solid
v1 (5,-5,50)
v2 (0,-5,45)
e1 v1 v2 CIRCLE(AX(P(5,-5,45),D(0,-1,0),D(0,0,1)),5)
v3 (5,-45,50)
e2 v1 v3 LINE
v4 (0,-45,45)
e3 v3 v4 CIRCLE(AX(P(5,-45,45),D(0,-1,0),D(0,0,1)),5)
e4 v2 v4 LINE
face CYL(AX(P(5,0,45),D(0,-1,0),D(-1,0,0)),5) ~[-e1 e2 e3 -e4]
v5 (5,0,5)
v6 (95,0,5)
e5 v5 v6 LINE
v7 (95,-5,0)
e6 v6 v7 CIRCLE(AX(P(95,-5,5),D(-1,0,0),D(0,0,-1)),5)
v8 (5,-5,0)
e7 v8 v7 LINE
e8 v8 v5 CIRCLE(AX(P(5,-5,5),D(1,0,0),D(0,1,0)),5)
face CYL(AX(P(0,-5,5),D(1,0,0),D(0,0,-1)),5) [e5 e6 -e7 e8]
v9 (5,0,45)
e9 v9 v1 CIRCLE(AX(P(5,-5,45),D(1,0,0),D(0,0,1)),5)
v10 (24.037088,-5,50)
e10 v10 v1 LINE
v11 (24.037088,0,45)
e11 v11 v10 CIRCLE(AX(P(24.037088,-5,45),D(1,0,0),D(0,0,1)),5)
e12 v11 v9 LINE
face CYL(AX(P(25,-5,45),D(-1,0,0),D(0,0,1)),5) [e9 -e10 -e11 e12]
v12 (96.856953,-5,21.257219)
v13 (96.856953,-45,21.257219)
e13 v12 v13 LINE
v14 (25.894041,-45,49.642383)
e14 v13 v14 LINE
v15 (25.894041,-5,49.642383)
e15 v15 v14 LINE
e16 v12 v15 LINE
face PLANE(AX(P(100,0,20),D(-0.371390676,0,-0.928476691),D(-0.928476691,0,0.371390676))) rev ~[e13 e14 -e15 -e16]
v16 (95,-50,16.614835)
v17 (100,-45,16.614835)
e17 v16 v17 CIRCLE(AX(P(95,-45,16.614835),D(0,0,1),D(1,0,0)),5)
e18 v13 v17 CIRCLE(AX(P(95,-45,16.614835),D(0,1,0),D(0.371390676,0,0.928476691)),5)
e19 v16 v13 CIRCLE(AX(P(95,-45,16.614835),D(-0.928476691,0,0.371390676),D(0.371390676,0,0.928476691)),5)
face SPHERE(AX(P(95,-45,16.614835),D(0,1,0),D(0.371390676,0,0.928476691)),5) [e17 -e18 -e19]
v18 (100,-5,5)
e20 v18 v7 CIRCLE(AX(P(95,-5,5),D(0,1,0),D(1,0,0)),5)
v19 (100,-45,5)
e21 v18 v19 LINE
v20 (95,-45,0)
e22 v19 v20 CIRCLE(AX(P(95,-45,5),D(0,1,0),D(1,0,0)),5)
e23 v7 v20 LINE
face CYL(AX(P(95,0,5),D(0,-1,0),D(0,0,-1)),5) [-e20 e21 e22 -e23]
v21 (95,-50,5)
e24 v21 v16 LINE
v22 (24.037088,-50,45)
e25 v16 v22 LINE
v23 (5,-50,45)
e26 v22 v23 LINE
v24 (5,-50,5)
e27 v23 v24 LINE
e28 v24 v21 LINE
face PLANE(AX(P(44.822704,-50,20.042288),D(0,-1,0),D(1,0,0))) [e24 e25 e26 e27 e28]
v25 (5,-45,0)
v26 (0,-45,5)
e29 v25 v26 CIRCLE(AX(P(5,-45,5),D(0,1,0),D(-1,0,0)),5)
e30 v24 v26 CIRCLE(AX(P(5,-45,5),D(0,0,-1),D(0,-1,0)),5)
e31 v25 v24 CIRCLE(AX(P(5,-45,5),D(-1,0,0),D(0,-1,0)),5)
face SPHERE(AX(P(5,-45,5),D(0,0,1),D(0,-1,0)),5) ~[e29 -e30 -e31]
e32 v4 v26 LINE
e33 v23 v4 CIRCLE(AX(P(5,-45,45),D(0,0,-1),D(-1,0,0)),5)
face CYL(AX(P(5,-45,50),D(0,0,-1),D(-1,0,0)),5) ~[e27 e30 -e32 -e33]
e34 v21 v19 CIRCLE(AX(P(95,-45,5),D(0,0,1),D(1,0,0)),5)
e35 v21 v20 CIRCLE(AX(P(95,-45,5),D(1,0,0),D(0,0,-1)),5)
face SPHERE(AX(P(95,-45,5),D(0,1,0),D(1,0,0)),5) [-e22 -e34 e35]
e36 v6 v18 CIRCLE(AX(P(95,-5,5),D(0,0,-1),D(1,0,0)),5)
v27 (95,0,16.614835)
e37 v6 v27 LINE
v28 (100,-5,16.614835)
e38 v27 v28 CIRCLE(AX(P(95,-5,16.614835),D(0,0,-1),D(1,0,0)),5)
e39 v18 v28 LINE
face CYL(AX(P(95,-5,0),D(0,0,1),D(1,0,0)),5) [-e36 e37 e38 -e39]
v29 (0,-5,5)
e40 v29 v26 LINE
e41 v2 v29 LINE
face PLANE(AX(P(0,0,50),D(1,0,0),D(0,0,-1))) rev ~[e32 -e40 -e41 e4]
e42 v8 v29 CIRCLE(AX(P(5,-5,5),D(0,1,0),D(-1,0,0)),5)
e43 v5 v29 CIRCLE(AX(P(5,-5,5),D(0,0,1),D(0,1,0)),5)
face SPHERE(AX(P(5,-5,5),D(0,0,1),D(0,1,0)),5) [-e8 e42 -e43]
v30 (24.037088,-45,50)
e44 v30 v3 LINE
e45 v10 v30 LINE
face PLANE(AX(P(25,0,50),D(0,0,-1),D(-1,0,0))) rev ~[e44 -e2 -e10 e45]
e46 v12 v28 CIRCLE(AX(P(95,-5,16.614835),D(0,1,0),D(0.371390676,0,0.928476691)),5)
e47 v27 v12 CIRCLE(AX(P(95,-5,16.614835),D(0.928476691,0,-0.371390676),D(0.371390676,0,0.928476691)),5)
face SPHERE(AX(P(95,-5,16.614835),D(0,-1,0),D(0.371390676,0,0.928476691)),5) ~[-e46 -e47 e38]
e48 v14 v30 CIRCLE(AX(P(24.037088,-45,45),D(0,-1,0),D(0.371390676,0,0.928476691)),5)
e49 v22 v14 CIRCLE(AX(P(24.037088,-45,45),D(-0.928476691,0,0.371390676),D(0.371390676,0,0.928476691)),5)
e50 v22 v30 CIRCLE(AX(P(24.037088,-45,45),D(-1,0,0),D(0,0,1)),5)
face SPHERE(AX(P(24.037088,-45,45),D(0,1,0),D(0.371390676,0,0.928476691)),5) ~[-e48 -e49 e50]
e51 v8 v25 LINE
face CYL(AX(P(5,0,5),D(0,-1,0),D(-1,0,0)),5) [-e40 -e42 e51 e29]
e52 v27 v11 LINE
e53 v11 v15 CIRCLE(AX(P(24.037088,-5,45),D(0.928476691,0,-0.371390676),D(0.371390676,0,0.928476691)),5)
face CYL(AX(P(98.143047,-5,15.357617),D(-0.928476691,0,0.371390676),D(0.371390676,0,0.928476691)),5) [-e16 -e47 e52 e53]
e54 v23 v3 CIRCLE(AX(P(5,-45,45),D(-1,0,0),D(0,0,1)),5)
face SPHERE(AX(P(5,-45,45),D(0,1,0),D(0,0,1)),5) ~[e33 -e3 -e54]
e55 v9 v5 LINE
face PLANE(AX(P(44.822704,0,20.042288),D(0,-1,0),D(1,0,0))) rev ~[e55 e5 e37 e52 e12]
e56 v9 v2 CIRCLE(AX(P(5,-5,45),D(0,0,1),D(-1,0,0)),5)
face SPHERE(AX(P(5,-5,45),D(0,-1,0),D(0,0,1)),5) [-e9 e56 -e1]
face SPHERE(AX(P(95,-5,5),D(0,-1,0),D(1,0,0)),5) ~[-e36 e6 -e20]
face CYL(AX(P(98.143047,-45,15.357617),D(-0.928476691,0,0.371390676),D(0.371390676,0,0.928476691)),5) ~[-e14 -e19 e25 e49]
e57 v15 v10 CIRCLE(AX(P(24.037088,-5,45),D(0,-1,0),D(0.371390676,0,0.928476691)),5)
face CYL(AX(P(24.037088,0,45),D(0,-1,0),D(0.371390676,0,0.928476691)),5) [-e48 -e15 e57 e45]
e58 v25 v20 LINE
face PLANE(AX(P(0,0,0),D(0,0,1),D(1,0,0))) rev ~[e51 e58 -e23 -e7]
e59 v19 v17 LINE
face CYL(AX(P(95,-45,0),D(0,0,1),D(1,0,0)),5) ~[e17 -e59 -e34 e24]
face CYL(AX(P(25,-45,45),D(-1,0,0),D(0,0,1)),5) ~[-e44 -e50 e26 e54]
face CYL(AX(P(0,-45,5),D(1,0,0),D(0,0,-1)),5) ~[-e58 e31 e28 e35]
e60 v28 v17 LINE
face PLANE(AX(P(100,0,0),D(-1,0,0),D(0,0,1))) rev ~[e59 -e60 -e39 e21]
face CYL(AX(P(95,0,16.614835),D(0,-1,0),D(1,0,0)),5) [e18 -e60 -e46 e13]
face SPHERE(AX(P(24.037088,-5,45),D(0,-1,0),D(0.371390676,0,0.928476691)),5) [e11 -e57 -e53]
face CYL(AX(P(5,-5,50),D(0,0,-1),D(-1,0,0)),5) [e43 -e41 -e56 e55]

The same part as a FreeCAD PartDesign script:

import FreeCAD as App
import Part
import Sketcher
from FreeCAD import Vector

doc = App.newDocument("Part")
params = doc.addObject("Spreadsheet::Sheet", "Params")
for row, (alias, value) in enumerate([
    ("sketch1_width", "100 mm"),
    ("sketch1_width2", "25 mm"),
    ("sketch1_height", "50 mm"),
    ("sketch1_height2", "20 mm"),
    ("pad1_length", "50 mm"),
    ("fillet_radius", "5 mm"),
], start=1):
    params.set(f"A{row}", alias)
    params.set(f"B{row}", "=" + value)
    params.setAlias(f"B{row}", alias)

body = doc.addObject("PartDesign::Body", "Body")

# Sketch on XZ plane
sketch1 = body.newObject("Sketcher::SketchObject", "Sketch")
sketch1.AttachmentSupport = (doc.getObject("XZ_Plane"), [""])
sketch1.MapMode = "FlatFace"
sketch1.addGeometry([
    Part.LineSegment(Vector(0, 50, 0), Vector(0, 0, 0)),  # 0
    Part.LineSegment(Vector(0, 0, 0), Vector(100, 0, 0)),  # 1
    Part.LineSegment(Vector(100, 0, 0), Vector(100, 20, 0)),  # 2
    Part.LineSegment(Vector(100, 20, 0), Vector(25, 50, 0)),  # 3
    Part.LineSegment(Vector(25, 50, 0), Vector(0, 50, 0)),  # 4
], False)
sketch1.addConstraint([
    Sketcher.Constraint("Coincident", 0, 2, 1, 1),
    Sketcher.Constraint("Coincident", 1, 2, 2, 1),
    Sketcher.Constraint("Coincident", 2, 2, 3, 1),
    Sketcher.Constraint("Coincident", 3, 2, 4, 1),
    Sketcher.Constraint("Coincident", 4, 2, 0, 1),
    Sketcher.Constraint("Vertical", 0),
    Sketcher.Constraint("Horizontal", 1),
    Sketcher.Constraint("Vertical", 2),
    Sketcher.Constraint("Horizontal", 4),
    Sketcher.Constraint("Coincident", 0, 2, -1, 1),
    Sketcher.Constraint("DistanceX", 1, 1, 1, 2, 100.0),
    Sketcher.Constraint("DistanceX", 4, 2, 4, 1, 25.0),
    Sketcher.Constraint("DistanceY", 0, 2, 0, 1, 50.0),
    Sketcher.Constraint("DistanceY", 2, 1, 2, 2, 20.0),
])
sketch1.setExpression("Constraints[10]", "Params.sketch1_width")
sketch1.setExpression("Constraints[11]", "Params.sketch1_width2")
sketch1.setExpression("Constraints[12]", "Params.sketch1_height")
sketch1.setExpression("Constraints[13]", "Params.sketch1_height2")
pad1 = body.newObject("PartDesign::Pad", "Pad")
pad1.Profile = sketch1
pad1.setExpression("Length", "Params.pad1_length")
doc.recompute()

fillet = body.newObject("PartDesign::Fillet", "Fillet")
fillet.Base = (pad1, ["Edge1"])
fillet.UseAllEdges = True
fillet.setExpression("Radius", "Params.fillet_radius")

doc.recompute()
